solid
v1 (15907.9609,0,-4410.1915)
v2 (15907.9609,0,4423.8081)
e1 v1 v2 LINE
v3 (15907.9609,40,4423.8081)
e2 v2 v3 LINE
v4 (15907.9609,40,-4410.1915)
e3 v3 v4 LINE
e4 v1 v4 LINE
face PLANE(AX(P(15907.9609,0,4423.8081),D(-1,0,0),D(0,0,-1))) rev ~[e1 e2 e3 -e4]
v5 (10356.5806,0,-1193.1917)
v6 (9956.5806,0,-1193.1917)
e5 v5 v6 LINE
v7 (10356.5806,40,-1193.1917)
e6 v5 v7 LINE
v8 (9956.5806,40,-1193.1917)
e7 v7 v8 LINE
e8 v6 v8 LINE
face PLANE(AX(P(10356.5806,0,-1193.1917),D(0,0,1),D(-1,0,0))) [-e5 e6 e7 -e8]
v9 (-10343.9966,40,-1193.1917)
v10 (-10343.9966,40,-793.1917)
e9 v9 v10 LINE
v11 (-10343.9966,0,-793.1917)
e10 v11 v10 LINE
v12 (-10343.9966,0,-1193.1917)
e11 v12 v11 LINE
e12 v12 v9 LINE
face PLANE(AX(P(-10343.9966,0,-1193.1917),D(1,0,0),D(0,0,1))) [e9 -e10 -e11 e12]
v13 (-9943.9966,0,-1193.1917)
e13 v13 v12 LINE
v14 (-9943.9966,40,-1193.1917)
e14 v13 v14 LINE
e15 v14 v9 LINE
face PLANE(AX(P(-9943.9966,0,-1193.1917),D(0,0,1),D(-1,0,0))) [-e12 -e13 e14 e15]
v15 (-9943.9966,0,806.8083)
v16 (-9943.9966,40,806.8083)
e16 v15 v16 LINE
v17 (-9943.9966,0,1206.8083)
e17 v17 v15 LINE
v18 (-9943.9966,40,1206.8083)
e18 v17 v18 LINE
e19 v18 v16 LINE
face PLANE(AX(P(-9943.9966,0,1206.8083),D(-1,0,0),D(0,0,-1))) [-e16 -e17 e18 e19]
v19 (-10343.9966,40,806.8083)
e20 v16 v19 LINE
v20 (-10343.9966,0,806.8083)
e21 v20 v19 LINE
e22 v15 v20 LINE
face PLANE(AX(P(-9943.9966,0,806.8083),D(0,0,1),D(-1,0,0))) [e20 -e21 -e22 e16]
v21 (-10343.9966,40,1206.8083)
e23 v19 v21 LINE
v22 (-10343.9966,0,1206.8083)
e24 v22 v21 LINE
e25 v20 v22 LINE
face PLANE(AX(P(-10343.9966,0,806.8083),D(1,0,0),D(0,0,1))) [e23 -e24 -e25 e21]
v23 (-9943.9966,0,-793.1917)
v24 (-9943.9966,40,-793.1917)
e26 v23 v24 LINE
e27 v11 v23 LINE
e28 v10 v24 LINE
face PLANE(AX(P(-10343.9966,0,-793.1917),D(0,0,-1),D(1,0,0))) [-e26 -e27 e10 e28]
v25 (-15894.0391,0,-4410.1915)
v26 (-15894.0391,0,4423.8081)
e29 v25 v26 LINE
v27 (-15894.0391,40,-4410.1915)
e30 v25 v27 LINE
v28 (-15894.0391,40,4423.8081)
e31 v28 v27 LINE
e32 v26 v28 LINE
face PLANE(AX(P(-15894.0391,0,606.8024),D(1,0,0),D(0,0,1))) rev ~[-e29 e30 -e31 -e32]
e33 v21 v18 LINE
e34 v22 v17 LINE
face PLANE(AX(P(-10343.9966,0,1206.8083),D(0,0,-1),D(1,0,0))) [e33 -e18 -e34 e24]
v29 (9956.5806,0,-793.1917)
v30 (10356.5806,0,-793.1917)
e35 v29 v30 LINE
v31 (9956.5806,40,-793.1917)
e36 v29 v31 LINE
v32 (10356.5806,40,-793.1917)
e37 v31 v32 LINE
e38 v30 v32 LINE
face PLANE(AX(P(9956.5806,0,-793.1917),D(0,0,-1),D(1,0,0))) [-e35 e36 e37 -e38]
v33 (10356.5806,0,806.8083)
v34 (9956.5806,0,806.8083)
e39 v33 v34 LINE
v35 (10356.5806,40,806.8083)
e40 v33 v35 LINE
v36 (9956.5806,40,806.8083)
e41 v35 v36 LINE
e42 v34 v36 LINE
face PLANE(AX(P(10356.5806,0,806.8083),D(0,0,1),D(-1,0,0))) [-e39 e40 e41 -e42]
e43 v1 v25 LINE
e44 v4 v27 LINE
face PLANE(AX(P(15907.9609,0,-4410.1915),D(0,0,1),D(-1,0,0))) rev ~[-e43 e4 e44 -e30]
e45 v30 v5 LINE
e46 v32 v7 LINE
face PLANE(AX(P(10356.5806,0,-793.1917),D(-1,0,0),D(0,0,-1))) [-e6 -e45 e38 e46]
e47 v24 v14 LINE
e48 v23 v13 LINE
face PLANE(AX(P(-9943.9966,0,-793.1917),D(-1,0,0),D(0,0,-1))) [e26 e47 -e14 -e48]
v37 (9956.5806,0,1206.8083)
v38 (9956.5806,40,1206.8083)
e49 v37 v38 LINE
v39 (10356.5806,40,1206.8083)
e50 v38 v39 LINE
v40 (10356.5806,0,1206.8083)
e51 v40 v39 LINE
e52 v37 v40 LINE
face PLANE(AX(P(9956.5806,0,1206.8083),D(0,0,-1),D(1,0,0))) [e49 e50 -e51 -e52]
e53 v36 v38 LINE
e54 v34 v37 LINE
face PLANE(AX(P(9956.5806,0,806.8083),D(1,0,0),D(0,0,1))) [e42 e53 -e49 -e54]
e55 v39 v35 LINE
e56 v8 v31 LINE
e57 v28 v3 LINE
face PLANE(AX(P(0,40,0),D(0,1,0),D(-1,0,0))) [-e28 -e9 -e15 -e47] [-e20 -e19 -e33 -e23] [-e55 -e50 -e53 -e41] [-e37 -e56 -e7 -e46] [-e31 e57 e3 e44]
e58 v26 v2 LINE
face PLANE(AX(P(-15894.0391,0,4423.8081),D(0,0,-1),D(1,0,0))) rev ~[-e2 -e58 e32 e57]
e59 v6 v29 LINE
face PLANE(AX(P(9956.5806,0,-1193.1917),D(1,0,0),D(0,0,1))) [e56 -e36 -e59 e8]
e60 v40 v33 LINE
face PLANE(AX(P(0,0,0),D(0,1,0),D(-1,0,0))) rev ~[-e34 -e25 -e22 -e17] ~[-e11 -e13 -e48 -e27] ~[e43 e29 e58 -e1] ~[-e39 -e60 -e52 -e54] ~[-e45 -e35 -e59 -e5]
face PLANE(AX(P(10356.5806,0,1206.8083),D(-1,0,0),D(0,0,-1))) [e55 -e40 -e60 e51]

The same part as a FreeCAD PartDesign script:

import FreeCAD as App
import Part
import Sketcher

V = App.Vector
Q = App.Units.Quantity

doc = App.newDocument("Part")
params = doc.addObject("Spreadsheet::Sheet", "Params")
for row, (alias, value) in enumerate([
    ("sketch1_width", "1500 mm"),
    ("sketch1_width2", "31802 mm"),
    ("sketch1_width3", "400 mm"),
    ("pad1_length", "40 mm"),
    ("sketch2_width", "1500 mm"),
    ("pad2_length", "40 mm"),
], start=1):
    params.set(f"A{row}", alias)
    params.set(f"B{row}", "=" + value)
    params.setAlias(f"B{row}", alias)

body = doc.addObject("PartDesign::Body", "Body")

sketch1 = doc.addObject("Sketcher::SketchObject", "Sketch")
body.addObject(sketch1)
sketch1.AttachmentSupport = (doc.XZ_Plane, [""])
sketch1.MapMode = "FlatFace"
sketch1.addGeometry(Part.LineSegment(V(-15894, 607, 0), V(-15894, 4424, 0)), False)
sketch1.addGeometry(Part.LineSegment(V(-15894, 4424, 0), V(15908, 4424, 0)), False)
sketch1.addGeometry(Part.LineSegment(V(15908, 4424, 0), V(15908, 607, 0)), False)
sketch1.addGeometry(Part.LineSegment(V(15908, 607, 0), V(14408, 607, 0)), False)
sketch1.addGeometry(Part.LineSegment(V(14408, 607, 0), V(14408, -588, 0)), False)
sketch1.addGeometry(Part.LineSegment(V(14408, -588, 0), V(15908, -588, 0)), False)
sketch1.addGeometry(Part.LineSegment(V(15908, -588, 0), V(15908, -4410, 0)), False)
sketch1.addGeometry(Part.LineSegment(V(15908, -4410, 0), V(-15894, -4410, 0)), False)
sketch1.addGeometry(Part.LineSegment(V(-15894, -4410, 0), V(-15894, -588, 0)), False)
sketch1.addGeometry(Part.LineSegment(V(-15894, -588, 0), V(-14394, -588, 0)), False)
sketch1.addGeometry(Part.LineSegment(V(-14394, -588, 0), V(-14394, 607, 0)), False)
sketch1.addGeometry(Part.LineSegment(V(-14394, 607, 0), V(-15894, 607, 0)), False)
sketch1.addGeometry(Part.LineSegment(V(10357, -793, 0), V(9957, -793, 0)), False)
sketch1.addGeometry(Part.LineSegment(V(9957, -793, 0), V(9957, -1193, 0)), False)
sketch1.addGeometry(Part.LineSegment(V(9957, -1193, 0), V(10357, -1193, 0)), False)
sketch1.addGeometry(Part.LineSegment(V(10357, -1193, 0), V(10357, -793, 0)), False)
sketch1.addGeometry(Part.LineSegment(V(-9944, -793, 0), V(-10344, -793, 0)), False)
sketch1.addGeometry(Part.LineSegment(V(-10344, -793, 0), V(-10344, -1193, 0)), False)
sketch1.addGeometry(Part.LineSegment(V(-10344, -1193, 0), V(-9944, -1193, 0)), False)
sketch1.addGeometry(Part.LineSegment(V(-9944, -1193, 0), V(-9944, -793, 0)), False)
sketch1.addGeometry(Part.LineSegment(V(10357, 1207, 0), V(9957, 1207, 0)), False)
sketch1.addGeometry(Part.LineSegment(V(9957, 1207, 0), V(9957, 807, 0)), False)
sketch1.addGeometry(Part.LineSegment(V(9957, 807, 0), V(10357, 807, 0)), False)
sketch1.addGeometry(Part.LineSegment(V(10357, 807, 0), V(10357, 1207, 0)), False)
sketch1.addGeometry(Part.LineSegment(V(-9944, 1207, 0), V(-10344, 1207, 0)), False)
sketch1.addGeometry(Part.LineSegment(V(-10344, 1207, 0), V(-10344, 807, 0)), False)
sketch1.addGeometry(Part.LineSegment(V(-10344, 807, 0), V(-9944, 807, 0)), False)
sketch1.addGeometry(Part.LineSegment(V(-9944, 807, 0), V(-9944, 1207, 0)), False)
sketch1.addConstraint(Sketcher.Constraint("Coincident", 0, 2, 1, 1))
sketch1.addConstraint(Sketcher.Constraint("Coincident", 1, 2, 2, 1))
sketch1.addConstraint(Sketcher.Constraint("Coincident", 2, 2, 3, 1))
sketch1.addConstraint(Sketcher.Constraint("Coincident", 3, 2, 4, 1))
sketch1.addConstraint(Sketcher.Constraint("Coincident", 4, 2, 5, 1))
sketch1.addConstraint(Sketcher.Constraint("Coincident", 5, 2, 6, 1))
sketch1.addConstraint(Sketcher.Constraint("Coincident", 6, 2, 7, 1))
sketch1.addConstraint(Sketcher.Constraint("Coincident", 7, 2, 8, 1))
sketch1.addConstraint(Sketcher.Constraint("Coincident", 8, 2, 9, 1))
sketch1.addConstraint(Sketcher.Constraint("Coincident", 9, 2, 10, 1))
sketch1.addConstraint(Sketcher.Constraint("Coincident", 10, 2, 11, 1))
sketch1.addConstraint(Sketcher.Constraint("Coincident", 11, 2, 0, 1))
sketch1.addConstraint(Sketcher.Constraint("Coincident", 12, 2, 13, 1))
sketch1.addConstraint(Sketcher.Constraint("Coincident", 13, 2, 14, 1))
sketch1.addConstraint(Sketcher.Constraint("Coincident", 14, 2, 15, 1))
sketch1.addConstraint(Sketcher.Constraint("Coincident", 15, 2, 12, 1))
sketch1.addConstraint(Sketcher.Constraint("Coincident", 16, 2, 17, 1))
sketch1.addConstraint(Sketcher.Constraint("Coincident", 17, 2, 18, 1))
sketch1.addConstraint(Sketcher.Constraint("Coincident", 18, 2, 19, 1))
sketch1.addConstraint(Sketcher.Constraint("Coincident", 19, 2, 16, 1))
sketch1.addConstraint(Sketcher.Constraint("Coincident", 20, 2, 21, 1))
sketch1.addConstraint(Sketcher.Constraint("Coincident", 21, 2, 22, 1))
sketch1.addConstraint(Sketcher.Constraint("Coincident", 22, 2, 23, 1))
sketch1.addConstraint(Sketcher.Constraint("Coincident", 23, 2, 20, 1))
sketch1.addConstraint(Sketcher.Constraint("Coincident", 24, 2, 25, 1))
sketch1.addConstraint(Sketcher.Constraint("Coincident", 25, 2, 26, 1))
sketch1.addConstraint(Sketcher.Constraint("Coincident", 26, 2, 27, 1))
sketch1.addConstraint(Sketcher.Constraint("Coincident", 27, 2, 24, 1))
sketch1.addConstraint(Sketcher.Constraint("Vertical", 0))
sketch1.addConstraint(Sketcher.Constraint("Horizontal", 1))
sketch1.addConstraint(Sketcher.Constraint("Vertical", 2))
sketch1.addConstraint(Sketcher.Constraint("Horizontal", 3))
sketch1.addConstraint(Sketcher.Constraint("Vertical", 4))
sketch1.addConstraint(Sketcher.Constraint("Horizontal", 5))
sketch1.addConstraint(Sketcher.Constraint("Vertical", 6))
sketch1.addConstraint(Sketcher.Constraint("Horizontal", 7))
sketch1.addConstraint(Sketcher.Constraint("Vertical", 8))
sketch1.addConstraint(Sketcher.Constraint("Horizontal", 9))
sketch1.addConstraint(Sketcher.Constraint("Vertical", 10))
sketch1.addConstraint(Sketcher.Constraint("Horizontal", 11))
sketch1.addConstraint(Sketcher.Constraint("Horizontal", 12))
sketch1.addConstraint(Sketcher.Constraint("Vertical", 13))
sketch1.addConstraint(Sketcher.Constraint("Horizontal", 14))
sketch1.addConstraint(Sketcher.Constraint("Vertical", 15))
sketch1.addConstraint(Sketcher.Constraint("Horizontal", 16))
sketch1.addConstraint(Sketcher.Constraint("Vertical", 17))
sketch1.addConstraint(Sketcher.Constraint("Horizontal", 18))
sketch1.addConstraint(Sketcher.Constraint("Vertical", 19))
sketch1.addConstraint(Sketcher.Constraint("Horizontal", 20))
sketch1.addConstraint(Sketcher.Constraint("Vertical", 21))
sketch1.addConstraint(Sketcher.Constraint("Horizontal", 22))
sketch1.addConstraint(Sketcher.Constraint("Vertical", 23))
sketch1.addConstraint(Sketcher.Constraint("Horizontal", 24))
sketch1.addConstraint(Sketcher.Constraint("Vertical", 25))
sketch1.addConstraint(Sketcher.Constraint("Horizontal", 26))
sketch1.addConstraint(Sketcher.Constraint("Vertical", 27))
sketch1.addConstraint(Sketcher.Constraint("Horizontal", 5, 2, 8, 2))
sketch1.addConstraint(Sketcher.Constraint("Horizontal", 3, 2, 10, 2))
sketch1.addConstraint(Sketcher.Constraint("Horizontal", 15, 2, 16, 2))
sketch1.addConstraint(Sketcher.Constraint("Horizontal", 14, 2, 17, 2))
sketch1.addConstraint(Sketcher.Constraint("Horizontal", 23, 2, 24, 2))
sketch1.addConstraint(Sketcher.Constraint("Horizontal", 22, 2, 25, 2))
sketch1.addConstraint(Sketcher.Constraint("Vertical", 2, 2, 5, 2))
sketch1.addConstraint(Sketcher.Constraint("Vertical", 0, 2, 7, 2))
sketch1.addConstraint(Sketcher.Constraint("Vertical", 13, 2, 20, 2))
sketch1.addConstraint(Sketcher.Constraint("Vertical", 15, 2, 22, 2))
sketch1.addConstraint(Sketcher.Constraint("Vertical", 17, 2, 24, 2))
sketch1.addConstraint(Sketcher.Constraint("Vertical", 19, 2, 26, 2))
sketch1.addConstraint(Sketcher.Constraint("Equal", 5, 9))
sketch1.addConstraint(Sketcher.Constraint("Equal", 14, 16))
sketch1.addConstraint(Sketcher.Constraint("Equal", 26, 13))
sketch1.addConstraint(Sketcher.Constraint("Equal", 19, 21))
sketch1.addConstraint(Sketcher.Constraint("DistanceX", 3, 2, 3, 1, Q("1500 mm")))
sketch1.addConstraint(Sketcher.Constraint("DistanceX", 1, 1, 1, 2, Q("31802 mm")))
sketch1.addConstraint(Sketcher.Constraint("DistanceX", 12, 2, 12, 1, Q("400 mm")))
sketch1.addConstraint(Sketcher.Constraint("DistanceY", 12, 2, 20, 2, Q("2000 mm")))
sketch1.addConstraint(Sketcher.Constraint("DistanceY", 0, 1, 0, 2, Q("3817.0057 mm")))
sketch1.addConstraint(Sketcher.Constraint("DistanceY", 4, 2, 4, 1, Q("1195.2486 mm")))
sketch1.addConstraint(Sketcher.Constraint("DistanceY", 6, 2, 6, 1, Q("3821.7453 mm")))
sketch1.addConstraint(Sketcher.Constraint("DistanceX", 0, 2, -1, 1, Q("15894.039 mm")))
sketch1.addConstraint(Sketcher.Constraint("DistanceY", -1, 1, 0, 2, Q("4423.808 mm")))
sketch1.addConstraint(Sketcher.Constraint("DistanceY", 12, 2, 3, 2, Q("1399.994 mm")))
sketch1.addConstraint(Sketcher.Constraint("DistanceX", -1, 1, 12, 2, Q("9956.5806 mm")))
sketch1.addConstraint(Sketcher.Constraint("DistanceX", 16, 2, -1, 1, Q("10343.9966 mm")))
sketch1.setExpression("Constraints[72]", "Params.sketch1_width")
sketch1.setExpression("Constraints[73]", "Params.sketch1_width2")
sketch1.setExpression("Constraints[74]", "Params.sketch1_width3")
pad1 = doc.addObject("PartDesign::Pad", "Pad")
body.addObject(pad1)
pad1.Profile = sketch1
pad1.setExpression("Length", "Params.pad1_length")
pad1.Reversed = True

sketch2 = doc.addObject("Sketcher::SketchObject", "Sketch001")
body.addObject(sketch2)
sketch2.AttachmentSupport = (doc.XZ_Plane, [""])
sketch2.MapMode = "FlatFace"
sketch2.AttachmentOffset = App.Placement(V(0, 0, -40), App.Rotation())
sketch2.addGeometry(Part.LineSegment(V(-14382, -588, 0), V(-15894, -588, 0)), False)
sketch2.addGeometry(Part.LineSegment(V(-15894, -588, 0), V(-15894, 607, 0)), False)
sketch2.addGeometry(Part.LineSegment(V(-15894, 607, 0), V(-14382, 607, 0)), False)
sketch2.addGeometry(Part.LineSegment(V(-14382, 607, 0), V(-14382, -588, 0)), False)
sketch2.addGeometry(Part.LineSegment(V(15908, -588, 0), V(14408, -588, 0)), False)
sketch2.addGeometry(Part.LineSegment(V(14408, -588, 0), V(14408, 607, 0)), False)
sketch2.addGeometry(Part.LineSegment(V(14408, 607, 0), V(15908, 607, 0)), False)
sketch2.addGeometry(Part.LineSegment(V(15908, 607, 0), V(15908, -588, 0)), False)
sketch2.addConstraint(Sketcher.Constraint("Coincident", 0, 2, 1, 1))
sketch2.addConstraint(Sketcher.Constraint("Coincident", 1, 2, 2, 1))
sketch2.addConstraint(Sketcher.Constraint("Coincident", 2, 2, 3, 1))
sketch2.addConstraint(Sketcher.Constraint("Coincident", 3, 2, 0, 1))
sketch2.addConstraint(Sketcher.Constraint("Coincident", 4, 2, 5, 1))
sketch2.addConstraint(Sketcher.Constraint("Coincident", 5, 2, 6, 1))
sketch2.addConstraint(Sketcher.Constraint("Coincident", 6, 2, 7, 1))
sketch2.addConstraint(Sketcher.Constraint("Coincident", 7, 2, 4, 1))
sketch2.addConstraint(Sketcher.Constraint("Horizontal", 0))
sketch2.addConstraint(Sketcher.Constraint("Vertical", 1))
sketch2.addConstraint(Sketcher.Constraint("Horizontal", 2))
sketch2.addConstraint(Sketcher.Constraint("Vertical", 3))
sketch2.addConstraint(Sketcher.Constraint("Horizontal", 4))
sketch2.addConstraint(Sketcher.Constraint("Vertical", 5))
sketch2.addConstraint(Sketcher.Constraint("Horizontal", 6))
sketch2.addConstraint(Sketcher.Constraint("Vertical", 7))
sketch2.addConstraint(Sketcher.Constraint("Horizontal", 3, 2, 4, 2))
sketch2.addConstraint(Sketcher.Constraint("Horizontal", 2, 2, 5, 2))
sketch2.addConstraint(Sketcher.Constraint("DistanceX", 4, 2, 4, 1, Q("1500 mm")))
sketch2.addConstraint(Sketcher.Constraint("DistanceX", 0, 2, 4, 2, Q("30302 mm")))
sketch2.addConstraint(Sketcher.Constraint("DistanceX", 0, 2, 0, 1, Q("1512.538 mm")))
sketch2.addConstraint(Sketcher.Constraint("DistanceY", 1, 1, 1, 2, Q("1195.2486 mm")))
sketch2.addConstraint(Sketcher.Constraint("DistanceX", 0, 2, -1, 1, Q("15894.039 mm")))
sketch2.addConstraint(Sketcher.Constraint("DistanceY", 0, 2, -1, 1, Q("588.4462 mm")))
sketch2.setExpression("Constraints[18]", "Params.sketch2_width")
pad2 = doc.addObject("PartDesign::Pad", "Pad001")
body.addObject(pad2)
pad2.Profile = sketch2
pad2.setExpression("Length", "Params.pad2_length")

doc.recompute()
